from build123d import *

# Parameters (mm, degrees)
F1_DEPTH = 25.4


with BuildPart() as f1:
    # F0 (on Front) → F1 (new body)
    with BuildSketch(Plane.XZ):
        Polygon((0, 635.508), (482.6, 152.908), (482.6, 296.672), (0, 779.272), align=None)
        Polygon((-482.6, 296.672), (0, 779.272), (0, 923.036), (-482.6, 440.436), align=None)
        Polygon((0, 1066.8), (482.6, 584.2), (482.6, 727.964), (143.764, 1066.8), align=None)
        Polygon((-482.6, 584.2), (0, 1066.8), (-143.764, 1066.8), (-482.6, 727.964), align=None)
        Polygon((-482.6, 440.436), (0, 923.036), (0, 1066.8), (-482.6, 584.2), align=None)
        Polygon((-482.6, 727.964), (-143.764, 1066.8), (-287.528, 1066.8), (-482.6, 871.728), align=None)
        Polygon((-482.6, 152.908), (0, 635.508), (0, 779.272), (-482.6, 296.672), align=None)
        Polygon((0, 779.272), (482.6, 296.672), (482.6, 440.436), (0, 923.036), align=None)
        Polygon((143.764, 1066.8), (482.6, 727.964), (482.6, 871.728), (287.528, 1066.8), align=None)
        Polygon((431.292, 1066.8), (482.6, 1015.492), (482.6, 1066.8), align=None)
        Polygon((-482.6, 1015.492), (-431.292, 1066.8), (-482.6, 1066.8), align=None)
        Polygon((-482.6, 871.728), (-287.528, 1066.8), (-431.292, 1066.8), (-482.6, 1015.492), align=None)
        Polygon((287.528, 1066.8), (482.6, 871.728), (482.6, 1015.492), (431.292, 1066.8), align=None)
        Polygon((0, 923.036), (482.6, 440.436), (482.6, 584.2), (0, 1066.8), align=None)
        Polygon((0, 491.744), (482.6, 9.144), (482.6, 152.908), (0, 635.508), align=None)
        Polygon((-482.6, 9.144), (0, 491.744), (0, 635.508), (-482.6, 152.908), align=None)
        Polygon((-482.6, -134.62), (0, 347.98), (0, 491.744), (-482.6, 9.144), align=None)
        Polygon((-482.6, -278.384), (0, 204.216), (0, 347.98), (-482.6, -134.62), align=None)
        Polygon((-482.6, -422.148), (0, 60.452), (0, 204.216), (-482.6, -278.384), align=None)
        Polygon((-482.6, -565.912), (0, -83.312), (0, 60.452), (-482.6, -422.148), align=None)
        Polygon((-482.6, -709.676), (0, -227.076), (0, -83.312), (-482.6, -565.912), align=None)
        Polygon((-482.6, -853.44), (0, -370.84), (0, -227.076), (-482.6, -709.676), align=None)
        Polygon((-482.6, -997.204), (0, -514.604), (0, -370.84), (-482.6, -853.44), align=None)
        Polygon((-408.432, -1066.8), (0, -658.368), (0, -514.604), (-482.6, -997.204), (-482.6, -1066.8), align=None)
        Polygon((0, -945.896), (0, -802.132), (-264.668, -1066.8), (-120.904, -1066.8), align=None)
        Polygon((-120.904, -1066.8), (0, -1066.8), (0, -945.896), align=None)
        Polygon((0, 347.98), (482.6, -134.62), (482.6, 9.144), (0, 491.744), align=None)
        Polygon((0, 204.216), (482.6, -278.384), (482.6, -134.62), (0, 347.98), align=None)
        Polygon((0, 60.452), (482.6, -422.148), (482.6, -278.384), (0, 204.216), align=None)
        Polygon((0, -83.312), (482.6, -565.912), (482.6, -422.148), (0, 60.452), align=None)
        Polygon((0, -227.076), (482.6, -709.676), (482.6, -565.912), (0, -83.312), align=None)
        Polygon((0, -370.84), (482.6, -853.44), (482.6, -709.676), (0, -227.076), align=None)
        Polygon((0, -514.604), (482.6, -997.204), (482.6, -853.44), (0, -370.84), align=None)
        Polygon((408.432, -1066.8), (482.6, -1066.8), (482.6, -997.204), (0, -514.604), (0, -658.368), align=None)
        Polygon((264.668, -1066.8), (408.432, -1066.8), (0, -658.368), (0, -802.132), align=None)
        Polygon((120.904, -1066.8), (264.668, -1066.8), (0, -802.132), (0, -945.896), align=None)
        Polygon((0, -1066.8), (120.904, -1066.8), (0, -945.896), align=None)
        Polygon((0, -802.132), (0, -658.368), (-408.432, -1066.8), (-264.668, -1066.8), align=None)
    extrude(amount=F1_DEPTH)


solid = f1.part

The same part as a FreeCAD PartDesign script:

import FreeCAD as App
import Part
import Sketcher

V = App.Vector
Q = App.Units.Quantity

doc = App.newDocument("Part")
body = doc.addObject("PartDesign::Body", "Body")

# Sketch on XZ plane
sketch1 = body.newObject("Sketcher::SketchObject", "Sketch")
sketch1.AttachmentSupport = (doc.getObject("XZ_Plane"), [""])
sketch1.MapMode = "FlatFace"
sketch1.addGeometry(Part.LineSegment(V(483, 1067, 0), V(-483, 1067, 0)), False)
sketch1.addGeometry(Part.LineSegment(V(-483, 1067, 0), V(-483, -1067, 0)), False)
sketch1.addGeometry(Part.LineSegment(V(-483, -1067, 0), V(483, -1067, 0)), False)
sketch1.addGeometry(Part.LineSegment(V(483, -1067, 0), V(483, 1067, 0)), False)
sketch1.addConstraint(Sketcher.Constraint("Coincident", 0, 2, 1, 1))
sketch1.addConstraint(Sketcher.Constraint("Coincident", 1, 2, 2, 1))
sketch1.addConstraint(Sketcher.Constraint("Coincident", 2, 2, 3, 1))
sketch1.addConstraint(Sketcher.Constraint("Coincident", 3, 2, 0, 1))
sketch1.addConstraint(Sketcher.Constraint("Horizontal", 0))
sketch1.addConstraint(Sketcher.Constraint("Vertical", 1))
sketch1.addConstraint(Sketcher.Constraint("Horizontal", 2))
sketch1.addConstraint(Sketcher.Constraint("Vertical", 3))
sketch1.addConstraint(Sketcher.Constraint("Symmetric", 0, 2, 2, 2, -1, 1))
sketch1.addConstraint(Sketcher.Constraint("DistanceX", 0, 2, 0, 1, Q("38 in")))
sketch1.addConstraint(Sketcher.Constraint("DistanceY", 1, 2, 1, 1, Q("84 in")))
pad1 = body.newObject("PartDesign::Pad", "Pad")
pad1.Profile = sketch1
pad1.Length = Q("1 in")

doc.recompute()
